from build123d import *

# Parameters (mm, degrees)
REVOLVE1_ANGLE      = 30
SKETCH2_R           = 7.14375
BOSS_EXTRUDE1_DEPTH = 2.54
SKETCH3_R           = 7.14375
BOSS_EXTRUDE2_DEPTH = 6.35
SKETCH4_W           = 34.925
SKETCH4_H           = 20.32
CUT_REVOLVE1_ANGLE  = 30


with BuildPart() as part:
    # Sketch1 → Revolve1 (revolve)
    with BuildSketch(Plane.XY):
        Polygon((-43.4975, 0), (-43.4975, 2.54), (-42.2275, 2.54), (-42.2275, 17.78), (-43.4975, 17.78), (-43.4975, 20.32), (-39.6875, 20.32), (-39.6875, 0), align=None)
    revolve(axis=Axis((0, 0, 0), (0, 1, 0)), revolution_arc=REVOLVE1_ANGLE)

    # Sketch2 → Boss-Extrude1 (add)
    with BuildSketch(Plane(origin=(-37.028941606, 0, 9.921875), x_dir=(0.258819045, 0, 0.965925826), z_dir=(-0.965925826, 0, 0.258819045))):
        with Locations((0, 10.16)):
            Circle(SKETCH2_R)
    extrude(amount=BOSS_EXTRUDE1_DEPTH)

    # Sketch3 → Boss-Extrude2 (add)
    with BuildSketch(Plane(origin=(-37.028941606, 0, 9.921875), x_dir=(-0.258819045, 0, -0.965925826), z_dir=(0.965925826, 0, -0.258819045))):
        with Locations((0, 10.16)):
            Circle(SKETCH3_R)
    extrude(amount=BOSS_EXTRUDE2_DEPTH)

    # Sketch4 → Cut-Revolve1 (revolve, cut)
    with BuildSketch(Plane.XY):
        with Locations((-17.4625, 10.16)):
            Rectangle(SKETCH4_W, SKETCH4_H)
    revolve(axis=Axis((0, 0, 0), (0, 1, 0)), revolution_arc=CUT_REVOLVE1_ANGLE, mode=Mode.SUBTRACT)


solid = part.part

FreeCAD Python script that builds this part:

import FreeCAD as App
import Part
import Sketcher
from FreeCAD import Vector
Q = App.Units.Quantity

doc = App.newDocument("Part")
body = doc.addObject("PartDesign::Body", "Body")

# Sketch on XY plane
sketch1 = body.newObject("Sketcher::SketchObject", "Sketch")
sketch1.AttachmentSupport = (doc.getObject("XY_Plane"), [""])
sketch1.MapMode = "FlatFace"
sketch1.addGeometry(Part.LineSegment(Vector(-43.4975, 2.54, 0), Vector(-43.4975, 0, 0)), False)
sketch1.addGeometry(Part.LineSegment(Vector(-43.4975, 0, 0), Vector(-39.6875, 0, 0)), False)
sketch1.addGeometry(Part.LineSegment(Vector(-39.6875, 0, 0), Vector(-39.6875, 20.32, 0)), False)
sketch1.addGeometry(Part.LineSegment(Vector(-39.6875, 20.32, 0), Vector(-43.4975, 20.32, 0)), False)
sketch1.addGeometry(Part.LineSegment(Vector(-43.4975, 20.32, 0), Vector(-43.4975, 17.78, 0)), False)
sketch1.addGeometry(Part.LineSegment(Vector(-43.4975, 17.78, 0), Vector(-42.2275, 17.78, 0)), False)
sketch1.addGeometry(Part.LineSegment(Vector(-42.2275, 17.78, 0), Vector(-42.2275, 2.54, 0)), False)
sketch1.addGeometry(Part.LineSegment(Vector(-42.2275, 2.54, 0), Vector(-43.4975, 2.54, 0)), False)
sketch1.addConstraint(Sketcher.Constraint("Coincident", 0, 2, 1, 1))
sketch1.addConstraint(Sketcher.Constraint("Coincident", 1, 2, 2, 1))
sketch1.addConstraint(Sketcher.Constraint("Coincident", 2, 2, 3, 1))
sketch1.addConstraint(Sketcher.Constraint("Coincident", 3, 2, 4, 1))
sketch1.addConstraint(Sketcher.Constraint("Coincident", 4, 2, 5, 1))
sketch1.addConstraint(Sketcher.Constraint("Coincident", 5, 2, 6, 1))
sketch1.addConstraint(Sketcher.Constraint("Coincident", 6, 2, 7, 1))
sketch1.addConstraint(Sketcher.Constraint("Coincident", 7, 2, 0, 1))
sketch1.addConstraint(Sketcher.Constraint("Vertical", 0))
sketch1.addConstraint(Sketcher.Constraint("Horizontal", 1))
sketch1.addConstraint(Sketcher.Constraint("Vertical", 2))
sketch1.addConstraint(Sketcher.Constraint("Horizontal", 3))
sketch1.addConstraint(Sketcher.Constraint("Vertical", 4))
sketch1.addConstraint(Sketcher.Constraint("Horizontal", 5))
sketch1.addConstraint(Sketcher.Constraint("Vertical", 6))
sketch1.addConstraint(Sketcher.Constraint("Horizontal", 7))
sketch1.addConstraint(Sketcher.Constraint("PointOnObject", 0, 2, -1))
sketch1.addConstraint(Sketcher.Constraint("Vertical", 0, 2, 3, 2))
sketch1.addConstraint(Sketcher.Constraint("Equal", 0, 4))
sketch1.addConstraint(Sketcher.Constraint("DistanceY", 0, 2, 0, 1, Q("0.1 in")))
sketch1.addConstraint(Sketcher.Constraint("DistanceY", 2, 1, 2, 2, Q("0.8 in")))
sketch1.addConstraint(Sketcher.Constraint("DistanceX", 1, 1, 1, 2, Q("0.15 in")))
sketch1.addConstraint(Sketcher.Constraint("DistanceX", 5, 1, 5, 2, Q("0.05 in")))
sketch1.addConstraint(Sketcher.Constraint("DistanceX", 1, 2, -1, 1, Q("1.5625 in")))
revolution = body.newObject("PartDesign::Revolution", "Revolution")
revolution.Profile = sketch1
revolution.ReferenceAxis = (sketch1, ["V_Axis"])
revolution.Angle = 30

# Sketch on an angled plane
sketch2 = body.newObject("Sketcher::SketchObject", "Sketch001")
sketch2.Placement = App.Placement(Vector(-37.028942, 0, 9.921875), App.Rotation(Vector(0.258819045, 0, 0.965925826), Vector(0, 0.999999999, 0), Vector(-0.965925826, 0, 0.258819045), "ZXY"))
sketch2.addGeometry(Part.Circle(Vector(0, 10.16, 0), Vector(0, 0, 1), 7.14375), False)
sketch2.addConstraint(Sketcher.Constraint("PointOnObject", 0, 3, -2))
sketch2.addConstraint(Sketcher.Constraint("Diameter", 0, Q("0.5625 in")))
sketch2.addConstraint(Sketcher.Constraint("DistanceY", -1, 1, 0, 3, Q("0.4 in")))
pad1 = body.newObject("PartDesign::Pad", "Pad")
pad1.Profile = sketch2
pad1.Length = Q("0.1 in")

# Sketch on an angled plane
sketch3 = body.newObject("Sketcher::SketchObject", "Sketch002")
sketch3.Placement = App.Placement(Vector(-37.028942, 0, 9.921875), App.Rotation(Vector(-0.258819045, 0, -0.965925826), Vector(0, 0.999999999, 0), Vector(0.965925826, 0, -0.258819045), "ZXY"))
sketch3.addGeometry(Part.Circle(Vector(0, 10.16, 0), Vector(0, 0, 1), 7.14375), False)
sketch3.addConstraint(Sketcher.Constraint("PointOnObject", 0, 3, -2))
sketch3.addConstraint(Sketcher.Constraint("Diameter", 0, Q("0.5625 in")))
sketch3.addConstraint(Sketcher.Constraint("DistanceY", -1, 1, 0, 3, Q("0.4 in")))
pad2 = body.newObject("PartDesign::Pad", "Pad001")
pad2.Profile = sketch3
pad2.Length = Q("0.25 in")

# Sketch on XY plane
sketch4 = body.newObject("Sketcher::SketchObject", "Sketch003")
sketch4.AttachmentSupport = (doc.getObject("XY_Plane"), [""])
sketch4.MapMode = "FlatFace"
sketch4.addGeometry(Part.LineSegment(Vector(-34.925, 20.32, 0), Vector(-34.925, 0, 0)), False)
sketch4.addGeometry(Part.LineSegment(Vector(-34.925, 0, 0), Vector(0, 0, 0)), False)
sketch4.addGeometry(Part.LineSegment(Vector(0, 0, 0), Vector(0, 20.32, 0)), False)
sketch4.addGeometry(Part.LineSegment(Vector(0, 20.32, 0), Vector(-34.925, 20.32, 0)), False)
sketch4.addConstraint(Sketcher.Constraint("Coincident", 0, 2, 1, 1))
sketch4.addConstraint(Sketcher.Constraint("Coincident", 1, 2, 2, 1))
sketch4.addConstraint(Sketcher.Constraint("Coincident", 2, 2, 3, 1))
sketch4.addConstraint(Sketcher.Constraint("Coincident", 3, 2, 0, 1))
sketch4.addConstraint(Sketcher.Constraint("Vertical", 0))
sketch4.addConstraint(Sketcher.Constraint("Horizontal", 1))
sketch4.addConstraint(Sketcher.Constraint("Vertical", 2))
sketch4.addConstraint(Sketcher.Constraint("Horizontal", 3))
sketch4.addConstraint(Sketcher.Constraint("Coincident", 1, 2, -1, 1))
sketch4.addConstraint(Sketcher.Constraint("DistanceY", 0, 2, 0, 1, Q("0.8 in")))
sketch4.addConstraint(Sketcher.Constraint("DistanceX", 1, 1, 1, 2, Q("1.375 in")))
groove = body.newObject("PartDesign::Groove", "Groove")
groove.Profile = sketch4
groove.ReferenceAxis = (sketch4, ["V_Axis"])
groove.Angle = 30

doc.recompute()
